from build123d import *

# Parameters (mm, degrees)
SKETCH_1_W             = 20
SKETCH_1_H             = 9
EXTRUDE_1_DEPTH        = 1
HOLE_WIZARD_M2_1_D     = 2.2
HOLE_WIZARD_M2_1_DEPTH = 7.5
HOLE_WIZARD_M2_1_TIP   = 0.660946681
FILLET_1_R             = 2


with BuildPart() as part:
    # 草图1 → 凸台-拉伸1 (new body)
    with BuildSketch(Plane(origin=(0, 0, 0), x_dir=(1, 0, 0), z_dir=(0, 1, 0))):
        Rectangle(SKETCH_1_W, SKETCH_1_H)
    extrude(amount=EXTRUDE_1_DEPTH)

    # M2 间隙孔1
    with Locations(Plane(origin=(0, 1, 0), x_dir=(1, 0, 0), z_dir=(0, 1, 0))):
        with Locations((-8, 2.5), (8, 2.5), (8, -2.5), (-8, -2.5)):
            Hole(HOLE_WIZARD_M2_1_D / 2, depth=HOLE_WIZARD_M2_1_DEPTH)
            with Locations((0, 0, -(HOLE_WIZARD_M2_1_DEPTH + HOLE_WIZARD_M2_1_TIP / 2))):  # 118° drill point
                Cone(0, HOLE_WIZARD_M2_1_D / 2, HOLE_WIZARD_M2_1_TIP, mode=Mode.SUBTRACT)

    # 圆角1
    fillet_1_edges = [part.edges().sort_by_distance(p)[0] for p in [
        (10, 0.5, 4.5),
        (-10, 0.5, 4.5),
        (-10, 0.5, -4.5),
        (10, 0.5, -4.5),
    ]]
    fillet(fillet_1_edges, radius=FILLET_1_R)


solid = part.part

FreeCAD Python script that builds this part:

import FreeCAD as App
import Part
import Sketcher
from FreeCAD import Vector
Q = App.Units.Quantity


def edges_at(feature, points):
    """Names of the edges that pass closest to the given points."""
    edges = feature.Shape.Edges
    near = lambda p: min(range(len(edges)), key=lambda i: edges[i].distToShape(Part.Vertex(*p))[0])
    return sorted({f"Edge{near(p) + 1}" for p in points})


def add_polygon(sketch, points):
    """Adds a closed chain of lines whose ends are joined by coincident constraints."""
    first, n = sketch.GeometryCount, len(points)
    for a, b in zip(points, points[1:] + points[:1]):
        sketch.addGeometry(Part.LineSegment(App.Vector(*a, 0), App.Vector(*b, 0)), False)
    for i in range(n):
        sketch.addConstraint(Sketcher.Constraint("Coincident", first + i, 2, first + (i + 1) % n, 1))

doc = App.newDocument("Part")
body = doc.addObject("PartDesign::Body", "Body")

# Sketch on XZ plane
sketch1 = body.newObject("Sketcher::SketchObject", "Sketch")
sketch1.AttachmentSupport = (doc.getObject("XZ_Plane"), [""])
sketch1.MapMode = "FlatFace"
add_polygon(sketch1, [(-10, -4), (-10, 4), (10, 4), (10, -4)])  # lines 0-3
sketch1.addConstraint(Sketcher.Constraint("Vertical", 0))
sketch1.addConstraint(Sketcher.Constraint("Horizontal", 1))
sketch1.addConstraint(Sketcher.Constraint("Vertical", 2))
sketch1.addConstraint(Sketcher.Constraint("Horizontal", 3))
sketch1.addConstraint(Sketcher.Constraint("Symmetric", 0, 2, 2, 2, -1, 1))
sketch1.addConstraint(Sketcher.Constraint("DistanceX", 1, 1, 1, 2, Q("20 mm")))
sketch1.addConstraint(Sketcher.Constraint("DistanceY", 0, 1, 0, 2, Q("9 mm")))
pad1 = body.newObject("PartDesign::Pad", "Pad")
pad1.Profile = sketch1
pad1.Length = 1
pad1.Reversed = True

# Sketch on XZ plane
sketch2 = body.newObject("Sketcher::SketchObject", "Sketch001")
sketch2.AttachmentSupport = (doc.getObject("XZ_Plane"), [""])
sketch2.MapMode = "FlatFace"
sketch2.AttachmentOffset = App.Placement(Vector(0, 0, -1), App.Rotation())
sketch2.addGeometry(Part.Circle(Vector(-8, -2.5, 0), Vector(0, 0, 1), 1.1), False)
sketch2.addGeometry(Part.Circle(Vector(8, -2.5, 0), Vector(0, 0, 1), 1.1), False)
sketch2.addGeometry(Part.Circle(Vector(8, 2.5, 0), Vector(0, 0, 1), 1.1), False)
sketch2.addGeometry(Part.Circle(Vector(-8, 2.5, 0), Vector(0, 0, 1), 1.1), False)
sketch2.addConstraint(Sketcher.Constraint("Equal", 0, 1))
sketch2.addConstraint(Sketcher.Constraint("Equal", 1, 2))
sketch2.addConstraint(Sketcher.Constraint("Equal", 2, 3))
sketch2.addConstraint(Sketcher.Constraint("Symmetric", 0, 3, 2, 3, -1, 1))
sketch2.addConstraint(Sketcher.Constraint("Symmetric", 1, 3, 3, 3, -1, 1))
sketch2.addConstraint(Sketcher.Constraint("Symmetric", 0, 3, 1, 3, -2))
sketch2.addConstraint(Sketcher.Constraint("Diameter", 0, Q("2.2 mm")))
sketch2.addConstraint(Sketcher.Constraint("DistanceX", 0, 3, -1, 1, Q("8 mm")))
sketch2.addConstraint(Sketcher.Constraint("DistanceY", 1, 3, 2, 3, Q("5 mm")))
doc.recompute()
hole = body.newObject("PartDesign::Hole", "Hole")
hole.Profile = sketch2
hole.ThreadType = "None"
hole.Diameter = 2.2
hole.DepthType = "Dimension"
hole.Depth = 7.5
hole.DrillPoint = "Angled"
hole.DrillPointAngle = 118
hole.Reversed = True
doc.recompute()

fillet = body.newObject("PartDesign::Fillet", "Fillet")
fillet.Base = (hole, edges_at(hole, [
    (10, 0.5, 4.5),
    (-10, 0.5, 4.5),
    (-10, 0.5, -4.5),
    (10, 0.5, -4.5),
]))
fillet.Radius = 2

doc.recompute()
